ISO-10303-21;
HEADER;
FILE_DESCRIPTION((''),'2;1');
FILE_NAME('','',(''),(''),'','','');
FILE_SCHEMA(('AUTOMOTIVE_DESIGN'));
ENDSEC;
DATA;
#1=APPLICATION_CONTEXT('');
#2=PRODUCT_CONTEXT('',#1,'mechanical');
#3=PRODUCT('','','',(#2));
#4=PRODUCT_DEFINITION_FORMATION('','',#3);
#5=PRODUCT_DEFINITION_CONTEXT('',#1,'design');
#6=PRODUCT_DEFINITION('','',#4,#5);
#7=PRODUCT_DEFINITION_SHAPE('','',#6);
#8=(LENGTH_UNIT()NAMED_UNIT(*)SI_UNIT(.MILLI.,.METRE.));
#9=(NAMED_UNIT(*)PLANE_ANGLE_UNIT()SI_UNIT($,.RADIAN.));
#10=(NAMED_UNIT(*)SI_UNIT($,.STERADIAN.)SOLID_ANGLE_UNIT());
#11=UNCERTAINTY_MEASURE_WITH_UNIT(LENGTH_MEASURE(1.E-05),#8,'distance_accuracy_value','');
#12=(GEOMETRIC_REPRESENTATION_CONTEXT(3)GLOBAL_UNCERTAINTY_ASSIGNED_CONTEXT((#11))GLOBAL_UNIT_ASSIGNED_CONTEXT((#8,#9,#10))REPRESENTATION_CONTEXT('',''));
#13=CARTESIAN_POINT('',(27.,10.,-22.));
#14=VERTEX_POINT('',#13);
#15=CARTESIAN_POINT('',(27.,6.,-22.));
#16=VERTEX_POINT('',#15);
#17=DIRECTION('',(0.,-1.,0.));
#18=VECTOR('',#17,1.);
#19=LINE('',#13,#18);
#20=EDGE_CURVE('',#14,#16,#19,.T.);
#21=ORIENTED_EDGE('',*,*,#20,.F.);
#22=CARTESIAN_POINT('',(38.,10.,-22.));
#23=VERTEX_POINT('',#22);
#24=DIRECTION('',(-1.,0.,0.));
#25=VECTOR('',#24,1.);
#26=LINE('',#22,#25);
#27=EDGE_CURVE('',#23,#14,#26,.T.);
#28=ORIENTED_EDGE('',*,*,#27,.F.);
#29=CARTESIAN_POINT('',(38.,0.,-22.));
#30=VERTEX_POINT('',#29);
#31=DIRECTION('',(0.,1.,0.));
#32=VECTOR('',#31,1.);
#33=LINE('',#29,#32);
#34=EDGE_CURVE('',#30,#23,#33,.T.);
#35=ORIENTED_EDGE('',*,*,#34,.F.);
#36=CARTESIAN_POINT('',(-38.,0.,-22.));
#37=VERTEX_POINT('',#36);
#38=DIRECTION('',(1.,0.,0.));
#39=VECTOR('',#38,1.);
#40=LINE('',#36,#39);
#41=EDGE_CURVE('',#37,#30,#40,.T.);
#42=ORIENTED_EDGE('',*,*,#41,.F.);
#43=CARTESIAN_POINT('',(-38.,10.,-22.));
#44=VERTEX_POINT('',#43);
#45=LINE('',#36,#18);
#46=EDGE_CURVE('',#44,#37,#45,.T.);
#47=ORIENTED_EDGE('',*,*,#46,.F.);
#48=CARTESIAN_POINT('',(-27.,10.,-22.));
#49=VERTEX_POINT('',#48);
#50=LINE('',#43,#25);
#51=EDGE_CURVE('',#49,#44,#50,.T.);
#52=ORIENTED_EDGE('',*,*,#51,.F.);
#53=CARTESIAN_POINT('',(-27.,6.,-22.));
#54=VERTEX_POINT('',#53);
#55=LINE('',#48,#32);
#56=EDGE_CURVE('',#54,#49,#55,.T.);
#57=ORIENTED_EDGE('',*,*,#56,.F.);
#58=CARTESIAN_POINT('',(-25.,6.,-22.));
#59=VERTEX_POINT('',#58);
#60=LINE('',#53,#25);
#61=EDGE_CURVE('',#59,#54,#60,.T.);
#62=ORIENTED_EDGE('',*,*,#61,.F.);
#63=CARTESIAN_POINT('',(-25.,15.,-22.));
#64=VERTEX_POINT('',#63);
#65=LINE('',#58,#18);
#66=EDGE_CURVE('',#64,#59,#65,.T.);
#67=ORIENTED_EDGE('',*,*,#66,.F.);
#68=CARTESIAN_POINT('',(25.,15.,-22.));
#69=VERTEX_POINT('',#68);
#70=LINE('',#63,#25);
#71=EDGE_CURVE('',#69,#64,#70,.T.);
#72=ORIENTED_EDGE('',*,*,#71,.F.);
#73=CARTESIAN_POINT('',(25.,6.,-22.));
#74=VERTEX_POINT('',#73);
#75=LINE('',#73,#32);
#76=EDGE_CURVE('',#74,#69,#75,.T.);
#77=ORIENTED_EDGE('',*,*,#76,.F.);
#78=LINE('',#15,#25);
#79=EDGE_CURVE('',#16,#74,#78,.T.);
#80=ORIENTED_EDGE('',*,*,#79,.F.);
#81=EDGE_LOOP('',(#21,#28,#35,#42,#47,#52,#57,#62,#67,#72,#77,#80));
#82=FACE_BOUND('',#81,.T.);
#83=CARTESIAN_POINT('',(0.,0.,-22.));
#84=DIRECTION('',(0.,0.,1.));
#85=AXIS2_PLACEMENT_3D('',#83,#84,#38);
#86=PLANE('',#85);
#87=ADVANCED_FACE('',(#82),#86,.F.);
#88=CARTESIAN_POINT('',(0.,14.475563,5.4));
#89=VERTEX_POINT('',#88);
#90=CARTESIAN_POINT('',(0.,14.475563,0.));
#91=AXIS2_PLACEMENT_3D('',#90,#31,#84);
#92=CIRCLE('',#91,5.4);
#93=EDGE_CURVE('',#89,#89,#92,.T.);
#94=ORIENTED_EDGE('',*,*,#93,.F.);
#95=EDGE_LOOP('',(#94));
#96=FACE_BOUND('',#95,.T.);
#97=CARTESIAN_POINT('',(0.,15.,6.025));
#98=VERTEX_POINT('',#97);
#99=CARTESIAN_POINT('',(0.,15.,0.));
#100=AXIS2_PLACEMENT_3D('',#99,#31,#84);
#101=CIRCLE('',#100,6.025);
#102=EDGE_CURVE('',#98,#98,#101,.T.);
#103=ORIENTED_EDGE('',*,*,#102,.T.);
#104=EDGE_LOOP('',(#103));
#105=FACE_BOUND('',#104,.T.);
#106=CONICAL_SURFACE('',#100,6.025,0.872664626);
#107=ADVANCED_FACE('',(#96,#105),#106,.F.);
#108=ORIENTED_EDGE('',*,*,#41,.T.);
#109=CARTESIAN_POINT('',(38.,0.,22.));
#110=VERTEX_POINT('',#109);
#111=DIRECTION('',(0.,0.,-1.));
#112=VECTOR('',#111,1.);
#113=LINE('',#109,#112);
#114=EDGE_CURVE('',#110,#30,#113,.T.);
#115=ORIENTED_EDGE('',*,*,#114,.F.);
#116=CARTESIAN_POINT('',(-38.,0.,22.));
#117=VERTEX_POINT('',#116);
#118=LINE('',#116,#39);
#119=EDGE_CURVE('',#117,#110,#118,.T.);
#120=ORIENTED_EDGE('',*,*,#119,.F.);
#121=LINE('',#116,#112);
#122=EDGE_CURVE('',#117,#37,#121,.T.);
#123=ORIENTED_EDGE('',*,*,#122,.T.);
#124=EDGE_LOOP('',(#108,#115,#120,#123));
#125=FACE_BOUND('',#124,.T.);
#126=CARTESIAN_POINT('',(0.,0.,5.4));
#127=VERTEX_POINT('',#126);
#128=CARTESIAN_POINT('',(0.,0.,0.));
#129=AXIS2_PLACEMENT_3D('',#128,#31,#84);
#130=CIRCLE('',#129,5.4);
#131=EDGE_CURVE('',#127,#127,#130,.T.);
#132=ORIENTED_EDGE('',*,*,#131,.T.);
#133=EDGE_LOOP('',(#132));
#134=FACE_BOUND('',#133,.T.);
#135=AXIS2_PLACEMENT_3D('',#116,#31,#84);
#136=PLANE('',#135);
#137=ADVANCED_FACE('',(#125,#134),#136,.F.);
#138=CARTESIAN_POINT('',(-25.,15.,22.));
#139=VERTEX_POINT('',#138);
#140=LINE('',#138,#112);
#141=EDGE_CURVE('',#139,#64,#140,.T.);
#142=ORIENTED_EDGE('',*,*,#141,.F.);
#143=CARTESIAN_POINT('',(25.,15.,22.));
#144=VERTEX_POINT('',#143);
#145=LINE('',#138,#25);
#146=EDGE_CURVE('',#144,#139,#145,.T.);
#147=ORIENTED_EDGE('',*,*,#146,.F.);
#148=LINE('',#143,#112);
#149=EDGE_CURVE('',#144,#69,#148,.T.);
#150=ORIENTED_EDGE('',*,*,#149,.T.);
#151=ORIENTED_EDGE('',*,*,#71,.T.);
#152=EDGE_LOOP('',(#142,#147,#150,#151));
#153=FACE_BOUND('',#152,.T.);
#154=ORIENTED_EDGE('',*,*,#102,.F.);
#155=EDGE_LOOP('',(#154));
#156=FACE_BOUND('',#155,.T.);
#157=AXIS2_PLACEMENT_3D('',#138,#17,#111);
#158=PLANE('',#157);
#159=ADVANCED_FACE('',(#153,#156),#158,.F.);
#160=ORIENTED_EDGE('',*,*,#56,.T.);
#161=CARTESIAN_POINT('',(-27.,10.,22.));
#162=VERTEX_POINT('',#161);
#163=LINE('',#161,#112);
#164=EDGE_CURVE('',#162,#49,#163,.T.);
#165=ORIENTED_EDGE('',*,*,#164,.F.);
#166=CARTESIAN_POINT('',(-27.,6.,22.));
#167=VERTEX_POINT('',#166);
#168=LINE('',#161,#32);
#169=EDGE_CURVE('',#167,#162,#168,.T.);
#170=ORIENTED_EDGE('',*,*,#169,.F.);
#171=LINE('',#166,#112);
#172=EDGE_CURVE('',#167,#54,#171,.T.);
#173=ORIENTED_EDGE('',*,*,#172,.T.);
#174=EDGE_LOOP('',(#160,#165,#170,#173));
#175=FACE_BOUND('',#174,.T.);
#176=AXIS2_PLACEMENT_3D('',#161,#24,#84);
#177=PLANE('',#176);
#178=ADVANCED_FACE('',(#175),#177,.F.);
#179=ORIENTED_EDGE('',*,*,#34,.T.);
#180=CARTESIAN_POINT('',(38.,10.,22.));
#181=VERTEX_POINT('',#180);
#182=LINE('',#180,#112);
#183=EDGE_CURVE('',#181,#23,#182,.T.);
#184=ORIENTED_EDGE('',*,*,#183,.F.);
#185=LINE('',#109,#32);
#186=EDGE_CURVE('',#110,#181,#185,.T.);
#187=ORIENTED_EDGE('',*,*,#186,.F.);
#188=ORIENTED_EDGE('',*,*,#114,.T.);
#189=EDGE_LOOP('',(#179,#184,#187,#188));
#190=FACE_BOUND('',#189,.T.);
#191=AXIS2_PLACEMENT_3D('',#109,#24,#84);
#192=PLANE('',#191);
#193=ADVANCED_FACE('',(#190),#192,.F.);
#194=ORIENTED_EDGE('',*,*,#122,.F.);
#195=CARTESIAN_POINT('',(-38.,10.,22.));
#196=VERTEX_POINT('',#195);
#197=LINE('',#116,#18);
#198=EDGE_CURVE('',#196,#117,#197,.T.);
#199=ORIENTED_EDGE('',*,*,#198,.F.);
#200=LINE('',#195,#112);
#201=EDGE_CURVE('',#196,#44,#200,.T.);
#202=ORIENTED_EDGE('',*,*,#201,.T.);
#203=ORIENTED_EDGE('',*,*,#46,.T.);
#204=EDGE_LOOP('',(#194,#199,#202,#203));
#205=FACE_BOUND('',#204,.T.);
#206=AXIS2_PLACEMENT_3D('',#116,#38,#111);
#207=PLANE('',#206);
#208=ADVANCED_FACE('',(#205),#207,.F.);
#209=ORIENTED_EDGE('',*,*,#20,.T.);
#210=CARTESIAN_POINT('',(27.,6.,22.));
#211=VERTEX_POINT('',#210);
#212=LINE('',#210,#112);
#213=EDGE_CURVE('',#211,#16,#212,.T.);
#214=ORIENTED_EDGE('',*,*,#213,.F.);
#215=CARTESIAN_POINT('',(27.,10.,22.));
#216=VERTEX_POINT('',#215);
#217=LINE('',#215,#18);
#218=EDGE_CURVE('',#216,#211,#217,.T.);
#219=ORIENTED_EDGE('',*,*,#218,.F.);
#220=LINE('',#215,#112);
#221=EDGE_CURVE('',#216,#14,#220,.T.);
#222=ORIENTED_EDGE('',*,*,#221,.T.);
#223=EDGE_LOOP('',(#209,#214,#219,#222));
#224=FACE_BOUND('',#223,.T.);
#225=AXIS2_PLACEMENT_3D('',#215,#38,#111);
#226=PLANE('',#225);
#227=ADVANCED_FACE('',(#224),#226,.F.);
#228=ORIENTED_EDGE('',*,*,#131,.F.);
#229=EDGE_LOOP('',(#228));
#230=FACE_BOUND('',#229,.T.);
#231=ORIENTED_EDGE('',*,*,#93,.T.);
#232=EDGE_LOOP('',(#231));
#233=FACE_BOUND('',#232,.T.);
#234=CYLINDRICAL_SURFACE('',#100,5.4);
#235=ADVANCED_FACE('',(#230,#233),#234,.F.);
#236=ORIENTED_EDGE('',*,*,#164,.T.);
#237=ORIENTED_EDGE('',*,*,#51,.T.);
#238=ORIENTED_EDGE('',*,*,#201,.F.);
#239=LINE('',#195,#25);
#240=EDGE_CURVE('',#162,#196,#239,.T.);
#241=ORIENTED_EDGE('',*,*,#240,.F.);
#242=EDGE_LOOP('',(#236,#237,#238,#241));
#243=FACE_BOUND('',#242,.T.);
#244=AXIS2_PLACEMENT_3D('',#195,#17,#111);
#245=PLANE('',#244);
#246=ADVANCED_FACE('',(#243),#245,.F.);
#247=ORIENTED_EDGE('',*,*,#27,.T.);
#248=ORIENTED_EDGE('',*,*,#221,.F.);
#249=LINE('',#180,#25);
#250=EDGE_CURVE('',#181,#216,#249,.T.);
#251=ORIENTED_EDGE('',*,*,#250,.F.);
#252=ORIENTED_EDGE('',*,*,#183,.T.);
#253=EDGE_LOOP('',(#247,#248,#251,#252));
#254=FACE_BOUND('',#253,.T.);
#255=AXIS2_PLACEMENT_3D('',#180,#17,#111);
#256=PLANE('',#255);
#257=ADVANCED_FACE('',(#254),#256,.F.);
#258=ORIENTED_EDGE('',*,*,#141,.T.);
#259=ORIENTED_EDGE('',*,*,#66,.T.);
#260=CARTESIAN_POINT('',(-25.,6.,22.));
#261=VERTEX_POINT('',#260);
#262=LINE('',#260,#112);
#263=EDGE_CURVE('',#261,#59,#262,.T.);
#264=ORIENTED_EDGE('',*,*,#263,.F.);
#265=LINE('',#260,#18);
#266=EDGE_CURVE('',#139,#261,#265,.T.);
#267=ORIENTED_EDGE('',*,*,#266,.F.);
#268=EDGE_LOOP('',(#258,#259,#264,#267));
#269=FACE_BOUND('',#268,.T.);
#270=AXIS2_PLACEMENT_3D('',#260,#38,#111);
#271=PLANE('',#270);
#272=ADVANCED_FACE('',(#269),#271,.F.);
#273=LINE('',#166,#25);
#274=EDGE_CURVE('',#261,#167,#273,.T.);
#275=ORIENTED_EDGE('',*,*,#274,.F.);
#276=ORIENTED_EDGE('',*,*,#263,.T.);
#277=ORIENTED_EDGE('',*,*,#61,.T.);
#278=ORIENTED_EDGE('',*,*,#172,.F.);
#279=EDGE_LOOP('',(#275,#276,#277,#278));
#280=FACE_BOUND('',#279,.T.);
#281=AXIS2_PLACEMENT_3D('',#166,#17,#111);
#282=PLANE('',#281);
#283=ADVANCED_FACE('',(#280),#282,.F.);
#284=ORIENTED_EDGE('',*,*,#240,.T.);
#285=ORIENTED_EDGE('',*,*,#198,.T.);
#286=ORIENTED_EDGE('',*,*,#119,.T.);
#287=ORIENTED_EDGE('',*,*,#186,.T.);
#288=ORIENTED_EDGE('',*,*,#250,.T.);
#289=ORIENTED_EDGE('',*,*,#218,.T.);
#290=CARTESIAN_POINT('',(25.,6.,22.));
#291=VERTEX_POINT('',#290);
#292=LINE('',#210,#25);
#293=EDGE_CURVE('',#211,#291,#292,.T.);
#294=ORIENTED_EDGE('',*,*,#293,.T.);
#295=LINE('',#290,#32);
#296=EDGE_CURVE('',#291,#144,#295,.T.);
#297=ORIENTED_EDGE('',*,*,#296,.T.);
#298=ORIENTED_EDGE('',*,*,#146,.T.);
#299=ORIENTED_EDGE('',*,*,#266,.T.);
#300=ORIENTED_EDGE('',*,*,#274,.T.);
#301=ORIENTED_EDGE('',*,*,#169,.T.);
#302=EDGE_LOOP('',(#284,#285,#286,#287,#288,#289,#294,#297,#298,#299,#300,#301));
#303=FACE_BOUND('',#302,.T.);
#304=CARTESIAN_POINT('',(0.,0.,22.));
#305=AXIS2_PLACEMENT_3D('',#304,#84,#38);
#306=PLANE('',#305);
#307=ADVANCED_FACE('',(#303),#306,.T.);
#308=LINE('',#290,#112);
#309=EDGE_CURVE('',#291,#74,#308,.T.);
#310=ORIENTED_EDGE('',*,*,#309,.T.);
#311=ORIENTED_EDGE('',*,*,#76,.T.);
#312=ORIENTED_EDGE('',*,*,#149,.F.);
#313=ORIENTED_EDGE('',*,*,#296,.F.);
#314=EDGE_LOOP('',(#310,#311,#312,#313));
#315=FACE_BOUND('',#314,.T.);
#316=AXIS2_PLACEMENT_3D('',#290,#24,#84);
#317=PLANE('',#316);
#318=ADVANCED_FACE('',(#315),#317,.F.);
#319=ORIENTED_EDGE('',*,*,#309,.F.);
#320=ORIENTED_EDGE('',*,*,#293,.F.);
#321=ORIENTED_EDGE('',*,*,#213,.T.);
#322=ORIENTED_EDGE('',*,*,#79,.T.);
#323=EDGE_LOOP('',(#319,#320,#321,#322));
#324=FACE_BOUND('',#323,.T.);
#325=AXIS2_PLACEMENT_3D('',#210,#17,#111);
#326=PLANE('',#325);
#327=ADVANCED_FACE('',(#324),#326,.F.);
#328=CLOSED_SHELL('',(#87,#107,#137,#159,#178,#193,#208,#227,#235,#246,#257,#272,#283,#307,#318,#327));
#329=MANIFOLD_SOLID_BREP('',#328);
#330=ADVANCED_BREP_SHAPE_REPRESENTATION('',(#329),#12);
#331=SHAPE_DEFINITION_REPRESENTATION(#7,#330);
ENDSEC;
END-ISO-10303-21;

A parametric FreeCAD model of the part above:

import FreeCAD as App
import Part
import Sketcher
from FreeCAD import Vector

doc = App.newDocument("Part")
body = doc.addObject("PartDesign::Body", "Body")

# Sketch on XY plane
sketch1 = doc.addObject("Sketcher::SketchObject", "Sketch")
body.addObject(sketch1)
sketch1.AttachmentSupport = (doc.XY_Plane, [""])
sketch1.MapMode = "FlatFace"
sketch1.addGeometry([
    Part.LineSegment(Vector(-38, 10, 0), Vector(-38, 0, 0)),  # 0
    Part.LineSegment(Vector(-38, 0, 0), Vector(38, 0, 0)),  # 1
    Part.LineSegment(Vector(38, 0, 0), Vector(38, 10, 0)),  # 2
    Part.LineSegment(Vector(38, 10, 0), Vector(27, 10, 0)),  # 3
    Part.LineSegment(Vector(27, 10, 0), Vector(27, 6, 0)),  # 4
    Part.LineSegment(Vector(27, 6, 0), Vector(25, 6, 0)),  # 5
    Part.LineSegment(Vector(25, 6, 0), Vector(25, 15, 0)),  # 6
    Part.LineSegment(Vector(25, 15, 0), Vector(-25, 15, 0)),  # 7
    Part.LineSegment(Vector(-25, 15, 0), Vector(-25, 6, 0)),  # 8
    Part.LineSegment(Vector(-25, 6, 0), Vector(-27, 6, 0)),  # 9
    Part.LineSegment(Vector(-27, 6, 0), Vector(-27, 10, 0)),  # 10
    Part.LineSegment(Vector(-27, 10, 0), Vector(-38, 10, 0)),  # 11
], False)
sketch1.addConstraint([
    Sketcher.Constraint("Coincident", 0, 2, 1, 1),
    Sketcher.Constraint("Coincident", 1, 2, 2, 1),
    Sketcher.Constraint("Coincident", 2, 2, 3, 1),
    Sketcher.Constraint("Coincident", 3, 2, 4, 1),
    Sketcher.Constraint("Coincident", 4, 2, 5, 1),
    Sketcher.Constraint("Coincident", 5, 2, 6, 1),
    Sketcher.Constraint("Coincident", 6, 2, 7, 1),
    Sketcher.Constraint("Coincident", 7, 2, 8, 1),
    Sketcher.Constraint("Coincident", 8, 2, 9, 1),
    Sketcher.Constraint("Coincident", 9, 2, 10, 1),
    Sketcher.Constraint("Coincident", 10, 2, 11, 1),
    Sketcher.Constraint("Coincident", 11, 2, 0, 1),
    Sketcher.Constraint("Vertical", 0),
    Sketcher.Constraint("Horizontal", 1),
    Sketcher.Constraint("Vertical", 2),
    Sketcher.Constraint("Horizontal", 3),
    Sketcher.Constraint("Vertical", 4),
    Sketcher.Constraint("Horizontal", 5),
    Sketcher.Constraint("Vertical", 6),
    Sketcher.Constraint("Horizontal", 7),
    Sketcher.Constraint("Vertical", 8),
    Sketcher.Constraint("Horizontal", 9),
    Sketcher.Constraint("Vertical", 10),
    Sketcher.Constraint("Horizontal", 11),
    Sketcher.Constraint("Symmetric", 0, 2, 1, 2, -1, 1),
    Sketcher.Constraint("Symmetric", 5, 2, 8, 2, -2),
    Sketcher.Constraint("Symmetric", 3, 2, 10, 2, -2),
    Sketcher.Constraint("DistanceX", 1, 1, 1, 2, 76.0),
    Sketcher.Constraint("DistanceX", 3, 2, 3, 1, 11.0),
    Sketcher.Constraint("DistanceX", 5, 2, 5, 1, 2.0),
    Sketcher.Constraint("DistanceY", 0, 2, 0, 1, 10.0),
    Sketcher.Constraint("DistanceY", 4, 2, 4, 1, 4.0),
    Sketcher.Constraint("DistanceY", 6, 1, 6, 2, 9.0),
])
pad1 = doc.addObject("PartDesign::Pad", "Pad")
body.addObject(pad1)
pad1.Profile = sketch1
pad1.Length = 44
pad1.Midplane = True

# Sketch on XZ plane
sketch2 = doc.addObject("Sketcher::SketchObject", "Sketch001")
body.addObject(sketch2)
sketch2.AttachmentSupport = (doc.XZ_Plane, [""])
sketch2.MapMode = "FlatFace"
sketch2.AttachmentOffset = App.Placement(Vector(0, 0, -15), App.Rotation())
sketch2.addGeometry(Part.Circle(Vector(0, 0, 0), Vector(0, 0, 1), 5), False)
sketch2.addConstraint([
    Sketcher.Constraint("Coincident", 0, 3, -1, 1),
    Sketcher.Constraint("Diameter", 0, 10.8),
])
doc.recompute()
hole = doc.addObject("PartDesign::Hole", "Hole")
body.addObject(hole)
hole.Profile = sketch2
hole.ThreadType = "None"
hole.Diameter = 10.8
hole.DepthType = "ThroughAll"
hole.HoleCutType = "Countersink"
hole.HoleCutDiameter = 12.05
hole.HoleCutCountersinkAngle = 100
hole.Reversed = True

doc.recompute()
